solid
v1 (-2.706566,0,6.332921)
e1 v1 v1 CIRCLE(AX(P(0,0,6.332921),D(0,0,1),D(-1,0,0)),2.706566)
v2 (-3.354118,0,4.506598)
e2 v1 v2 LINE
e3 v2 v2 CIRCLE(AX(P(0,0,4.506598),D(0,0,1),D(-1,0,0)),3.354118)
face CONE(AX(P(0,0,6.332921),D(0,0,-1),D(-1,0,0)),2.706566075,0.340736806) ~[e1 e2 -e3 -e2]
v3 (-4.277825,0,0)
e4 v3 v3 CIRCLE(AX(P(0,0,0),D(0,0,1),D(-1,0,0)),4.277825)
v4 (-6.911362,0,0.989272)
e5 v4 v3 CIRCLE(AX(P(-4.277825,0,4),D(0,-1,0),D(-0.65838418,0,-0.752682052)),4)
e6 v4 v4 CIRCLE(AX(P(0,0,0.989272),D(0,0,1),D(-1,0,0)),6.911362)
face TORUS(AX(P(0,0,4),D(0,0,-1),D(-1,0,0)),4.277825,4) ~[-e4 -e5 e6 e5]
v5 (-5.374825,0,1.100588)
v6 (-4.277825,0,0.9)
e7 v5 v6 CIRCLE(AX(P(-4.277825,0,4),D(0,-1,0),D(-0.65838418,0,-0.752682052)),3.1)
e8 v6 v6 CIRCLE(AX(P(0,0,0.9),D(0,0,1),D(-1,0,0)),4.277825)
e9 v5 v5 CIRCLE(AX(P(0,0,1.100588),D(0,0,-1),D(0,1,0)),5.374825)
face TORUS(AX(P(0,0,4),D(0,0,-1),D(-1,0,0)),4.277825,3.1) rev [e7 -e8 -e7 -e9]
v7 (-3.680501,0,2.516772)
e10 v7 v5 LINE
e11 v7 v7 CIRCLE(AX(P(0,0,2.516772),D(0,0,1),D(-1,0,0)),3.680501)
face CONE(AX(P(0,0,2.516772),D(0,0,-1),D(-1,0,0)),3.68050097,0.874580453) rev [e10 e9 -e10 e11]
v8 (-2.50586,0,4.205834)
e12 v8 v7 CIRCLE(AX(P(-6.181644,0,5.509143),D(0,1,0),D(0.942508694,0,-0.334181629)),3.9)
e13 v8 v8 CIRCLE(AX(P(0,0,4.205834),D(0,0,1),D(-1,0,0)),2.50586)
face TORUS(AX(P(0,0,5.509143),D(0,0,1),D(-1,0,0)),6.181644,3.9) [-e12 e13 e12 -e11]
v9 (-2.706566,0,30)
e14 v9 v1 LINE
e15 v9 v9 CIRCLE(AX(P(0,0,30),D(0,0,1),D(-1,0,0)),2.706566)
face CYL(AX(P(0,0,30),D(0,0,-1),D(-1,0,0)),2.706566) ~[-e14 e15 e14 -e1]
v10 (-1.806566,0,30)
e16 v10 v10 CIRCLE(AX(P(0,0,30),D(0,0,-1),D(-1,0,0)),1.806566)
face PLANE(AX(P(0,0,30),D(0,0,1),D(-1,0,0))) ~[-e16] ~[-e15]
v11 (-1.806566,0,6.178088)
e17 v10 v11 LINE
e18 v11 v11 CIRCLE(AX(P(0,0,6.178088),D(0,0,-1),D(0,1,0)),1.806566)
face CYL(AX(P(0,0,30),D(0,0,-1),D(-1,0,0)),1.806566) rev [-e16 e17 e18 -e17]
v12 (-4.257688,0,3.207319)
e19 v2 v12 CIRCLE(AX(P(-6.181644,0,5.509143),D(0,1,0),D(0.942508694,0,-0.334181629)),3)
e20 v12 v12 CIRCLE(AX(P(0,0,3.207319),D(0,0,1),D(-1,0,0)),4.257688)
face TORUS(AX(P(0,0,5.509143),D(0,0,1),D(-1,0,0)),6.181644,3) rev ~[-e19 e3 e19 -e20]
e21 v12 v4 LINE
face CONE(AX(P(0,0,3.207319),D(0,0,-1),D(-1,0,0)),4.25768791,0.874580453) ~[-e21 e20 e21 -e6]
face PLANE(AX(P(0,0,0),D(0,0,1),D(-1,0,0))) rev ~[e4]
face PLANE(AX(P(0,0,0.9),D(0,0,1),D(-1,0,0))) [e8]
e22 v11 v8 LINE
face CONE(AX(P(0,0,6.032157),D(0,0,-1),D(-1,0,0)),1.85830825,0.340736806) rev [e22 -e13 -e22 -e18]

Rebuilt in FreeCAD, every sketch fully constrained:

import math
import FreeCAD as App
import Part
import Sketcher


def faces_at(feature, points):
    """Names of the faces that lie closest to the given points."""
    faces = feature.Shape.Faces
    near = lambda p: min(range(len(faces)), key=lambda i: faces[i].distToShape(Part.Vertex(*p))[0])
    return sorted({f"Face{near(p) + 1}" for p in points})

doc = App.newDocument("Part")
body = doc.addObject("PartDesign::Body", "Body")

# Sketch on XZ plane
sketch1 = doc.addObject("Sketcher::SketchObject", "Sketch")
body.addObject(sketch1)
sketch1.AttachmentSupport = (doc.XZ_Plane, [""])
sketch1.MapMode = "FlatFace"
sketch1.addGeometry(Part.LineSegment(App.Vector(-4.3, 0, 0), App.Vector(0, 0, 0)), False)
sketch1.addGeometry(Part.LineSegment(App.Vector(0, 0, 0), App.Vector(0, 30, 0)), False)
sketch1.addGeometry(Part.LineSegment(App.Vector(0, 30, 0), App.Vector(-2.7, 30, 0)), False)
sketch1.addGeometry(Part.LineSegment(App.Vector(-2.7, 30, 0), App.Vector(-2.7, 6.3, 0)), False)
sketch1.addGeometry(Part.LineSegment(App.Vector(-2.7, 6.3, 0), App.Vector(-3.4, 4.5, 0)), False)
sketch1.addGeometry(Part.ArcOfCircle(Part.Circle(App.Vector(-6.2, 5.5, 0), App.Vector(0, 0, 1), 3), math.radians(-50), math.radians(-20)), False)
sketch1.addGeometry(Part.LineSegment(App.Vector(-4.3, 3.2, 0), App.Vector(-6.9, 1, 0)), False)
sketch1.addGeometry(Part.ArcOfCircle(Part.Circle(App.Vector(-4.3, 4, 0), App.Vector(0, 0, 1), 4), math.radians(-131), math.radians(-90)), False)
sketch1.addConstraint(Sketcher.Constraint("Coincident", 0, 2, 1, 1))
sketch1.addConstraint(Sketcher.Constraint("Coincident", 1, 2, 2, 1))
sketch1.addConstraint(Sketcher.Constraint("Coincident", 2, 2, 3, 1))
sketch1.addConstraint(Sketcher.Constraint("Coincident", 3, 2, 4, 1))
sketch1.addConstraint(Sketcher.Constraint("Tangent", 4, 2, 5, 2))
sketch1.addConstraint(Sketcher.Constraint("Tangent", 5, 1, 6, 1))
sketch1.addConstraint(Sketcher.Constraint("Coincident", 6, 2, 7, 1))
sketch1.addConstraint(Sketcher.Constraint("Tangent", 7, 2, 0, 1))
sketch1.addConstraint(Sketcher.Constraint("Horizontal", 0))
sketch1.addConstraint(Sketcher.Constraint("Vertical", 1))
sketch1.addConstraint(Sketcher.Constraint("Horizontal", 2))
sketch1.addConstraint(Sketcher.Constraint("Vertical", 3))
sketch1.addConstraint(Sketcher.Constraint("Coincident", 0, 2, -1, 1))
sketch1.addConstraint(Sketcher.Constraint("Radius", 5, 3.0))
sketch1.addConstraint(Sketcher.Constraint("Radius", 7, 4.0))
sketch1.addConstraint(Sketcher.Constraint("DistanceY", 1, 1, 1, 2, 30.0))
sketch1.addConstraint(Sketcher.Constraint("DistanceY", 3, 2, 3, 1, 23.667079))
sketch1.addConstraint(Sketcher.Constraint("DistanceY", 5, 1, 3, 2, 3.125602))
sketch1.addConstraint(Sketcher.Constraint("DistanceX", 0, 1, 0, 2, 4.277825))
sketch1.addConstraint(Sketcher.Constraint("DistanceX", 2, 2, 2, 1, 2.706566))
sketch1.addConstraint(Sketcher.Constraint("DistanceX", 4, 2, -1, 1, 3.354118))
sketch1.addConstraint(Sketcher.Constraint("DistanceY", -1, 1, 6, 2, 0.989272))
revolution = doc.addObject("PartDesign::Revolution", "Revolution")
body.addObject(revolution)
revolution.Profile = sketch1
revolution.ReferenceAxis = (sketch1, ["V_Axis"])
revolution.Angle = 360
doc.recompute()

thickness = doc.addObject("PartDesign::Thickness", "Thickness")
body.addObject(thickness)
thickness.Base = (revolution, faces_at(revolution, [(0, 0, 30)]))
thickness.Value = 0.9
thickness.Reversed = True
thickness.Join = "Intersection"

doc.recompute()
